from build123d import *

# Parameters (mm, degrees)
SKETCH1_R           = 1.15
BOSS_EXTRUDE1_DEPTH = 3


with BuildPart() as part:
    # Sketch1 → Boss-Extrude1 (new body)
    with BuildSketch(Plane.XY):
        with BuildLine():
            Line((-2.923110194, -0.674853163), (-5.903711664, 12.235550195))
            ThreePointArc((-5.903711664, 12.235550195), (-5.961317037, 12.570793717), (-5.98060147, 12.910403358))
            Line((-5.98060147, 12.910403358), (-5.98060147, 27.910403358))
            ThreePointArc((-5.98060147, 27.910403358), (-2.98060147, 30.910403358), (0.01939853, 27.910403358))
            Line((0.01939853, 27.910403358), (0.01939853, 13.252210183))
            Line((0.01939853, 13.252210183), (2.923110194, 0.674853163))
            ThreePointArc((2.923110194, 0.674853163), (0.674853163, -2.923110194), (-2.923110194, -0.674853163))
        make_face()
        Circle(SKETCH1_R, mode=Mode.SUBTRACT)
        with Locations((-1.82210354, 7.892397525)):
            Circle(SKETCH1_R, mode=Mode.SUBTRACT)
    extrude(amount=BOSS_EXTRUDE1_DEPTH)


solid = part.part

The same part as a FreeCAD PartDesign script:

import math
import FreeCAD as App
import Part
import Sketcher
from FreeCAD import Vector
Q = App.Units.Quantity

doc = App.newDocument("Part")
body = doc.addObject("PartDesign::Body", "Body")

# Sketch on XY plane
sketch1 = body.newObject("Sketcher::SketchObject", "Sketch")
sketch1.AttachmentSupport = (doc.getObject("XY_Plane"), [""])
sketch1.MapMode = "FlatFace"
sketch1.addGeometry([
    Part.LineSegment(Vector(-5.9, 12.2, 0), Vector(-2.9, -0.7, 0)),  # 0
    Part.ArcOfCircle(Part.Circle(Vector(0, 0, 0), Vector(0, 0, 1), 3), math.radians(-167), math.radians(13)),  # 1
    Part.LineSegment(Vector(2.9, 0.7, 0), Vector(0, 13.3, 0)),  # 2
    Part.LineSegment(Vector(0, 13.3, 0), Vector(0, 27.9, 0)),  # 3
    Part.ArcOfCircle(Part.Circle(Vector(-3, 27.9, 0), Vector(0, 0, 1), 3), math.radians(0), math.radians(180)),  # 4
    Part.LineSegment(Vector(-6, 27.9, 0), Vector(-6, 12.9, 0)),  # 5
    Part.ArcOfCircle(Part.Circle(Vector(-3, 12.9, 0), Vector(0, 0, 1), 3), math.radians(180), math.radians(193)),  # 6
    Part.Circle(Vector(0, 0, 0), Vector(0, 0, 1), 1.1),  # 7
    Part.Circle(Vector(-1.8, 7.9, 0), Vector(0, 0, 1), 1.1),  # 8
], False)
sketch1.addConstraint([
    Sketcher.Constraint("Tangent", 0, 2, 1, 1),
    Sketcher.Constraint("Tangent", 1, 2, 2, 1),
    Sketcher.Constraint("Coincident", 2, 2, 3, 1),
    Sketcher.Constraint("Tangent", 3, 2, 4, 1),
    Sketcher.Constraint("Tangent", 4, 2, 5, 1),
    Sketcher.Constraint("Tangent", 5, 2, 6, 1),
    Sketcher.Constraint("Tangent", 6, 2, 0, 1),
    Sketcher.Constraint("Vertical", 3),
    Sketcher.Constraint("Vertical", 5),
    Sketcher.Constraint("Coincident", 1, 3, -1, 1),
    Sketcher.Constraint("Coincident", 7, 3, -1, 1),
    Sketcher.Constraint("Equal", 1, 4),
    Sketcher.Constraint("Equal", 4, 6),
    Sketcher.Constraint("Equal", 7, 8),
    Sketcher.Constraint("Parallel", 0, 2),
    Sketcher.Constraint("Radius", 1, 3.0),
    Sketcher.Constraint("Diameter", 7, 2.3),
    Sketcher.Constraint("DistanceY", 5, 2, 5, 1, 15.0),
    Sketcher.Constraint("Angle", 0, Q("-77 deg")),
    Sketcher.Constraint("Distance", 0, 13.25),
    Sketcher.Constraint("DistanceY", 0, 2, 8, 3, 8.567251),
    Sketcher.Constraint("DistanceX", 6, 2, 8, 3, 4.081608),
])
pad1 = body.newObject("PartDesign::Pad", "Pad")
pad1.Profile = sketch1
pad1.Length = 3

doc.recompute()
